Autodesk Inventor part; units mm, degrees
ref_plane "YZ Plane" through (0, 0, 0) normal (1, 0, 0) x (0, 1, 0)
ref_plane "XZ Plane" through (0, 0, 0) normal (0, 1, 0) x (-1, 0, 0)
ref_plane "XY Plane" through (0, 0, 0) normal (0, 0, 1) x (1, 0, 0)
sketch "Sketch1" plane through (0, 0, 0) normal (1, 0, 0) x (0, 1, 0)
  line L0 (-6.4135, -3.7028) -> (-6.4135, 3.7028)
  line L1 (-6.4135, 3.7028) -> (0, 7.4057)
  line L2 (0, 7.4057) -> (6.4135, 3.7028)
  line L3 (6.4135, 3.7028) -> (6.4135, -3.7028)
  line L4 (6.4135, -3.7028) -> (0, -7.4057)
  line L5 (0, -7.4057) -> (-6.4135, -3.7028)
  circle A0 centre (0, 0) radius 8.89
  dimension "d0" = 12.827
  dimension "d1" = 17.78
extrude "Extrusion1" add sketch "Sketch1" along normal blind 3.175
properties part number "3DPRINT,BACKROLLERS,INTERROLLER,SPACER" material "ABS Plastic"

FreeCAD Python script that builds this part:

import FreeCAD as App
import Part
import Sketcher
from FreeCAD import Vector
Q = App.Units.Quantity


def add_polygon(sketch, points):
    """Adds a closed chain of lines whose ends are joined by coincident constraints."""
    first, n = sketch.GeometryCount, len(points)
    for a, b in zip(points, points[1:] + points[:1]):
        sketch.addGeometry(Part.LineSegment(App.Vector(*a, 0), App.Vector(*b, 0)), False)
    for i in range(n):
        sketch.addConstraint(Sketcher.Constraint("Coincident", first + i, 2, first + (i + 1) % n, 1))

doc = App.newDocument("Part")
body = doc.addObject("PartDesign::Body", "Body")

sketch1 = body.newObject("Sketcher::SketchObject", "Sketch")
sketch1.AttachmentSupport = (doc.getObject("YZ_Plane"), [""])
sketch1.MapMode = "FlatFace"
sketch1.addGeometry(Part.Circle(Vector(0, 0, 0), Vector(0, 0, 1), 8.89), False)
add_polygon(sketch1, [(0, -7.4057), (-6.4135, -3.7028), (-6.4135, 3.7028), (0, 7.4057), (6.4135, 3.7028), (6.4135, -3.7028)])
sketch1.addConstraint([
    Sketcher.Constraint("Vertical", 2),
    Sketcher.Constraint("Vertical", 5),
    Sketcher.Constraint("Coincident", 0, 3, -1, 1),
    Sketcher.Constraint("Symmetric", 1, 2, 4, 2, -1, 1),
    Sketcher.Constraint("Symmetric", 3, 2, 6, 2, -1, 1),
    Sketcher.Constraint("PointOnObject", 3, 2, -2),
    Sketcher.Constraint("Parallel", 3, 6),
    Sketcher.Constraint("Horizontal", 2, 2, 4, 2),
    Sketcher.Constraint("Diameter", 0, Q("0.7 in")),
    Sketcher.Constraint("Angle", 1, Q("149.9996 deg")),
    Sketcher.Constraint("DistanceX", 2, 2, 4, 2, Q("0.505 in")),
    Sketcher.Constraint("DistanceY", 2, 1, 2, 2, Q("7.4056 mm")),
])
pad1 = body.newObject("PartDesign::Pad", "Pad")
pad1.Profile = sketch1
pad1.Length = Q("0.125 in")

doc.recompute()
